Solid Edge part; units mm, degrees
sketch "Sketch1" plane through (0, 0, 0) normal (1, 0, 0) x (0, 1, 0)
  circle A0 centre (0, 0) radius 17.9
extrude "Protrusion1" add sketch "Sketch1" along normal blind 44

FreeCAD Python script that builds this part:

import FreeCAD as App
import Part
import Sketcher

V = App.Vector

doc = App.newDocument("Part")
body = doc.addObject("PartDesign::Body", "Body")

# Sketch on YZ plane
sketch1 = body.newObject("Sketcher::SketchObject", "Sketch")
sketch1.AttachmentSupport = (doc.getObject("YZ_Plane"), [""])
sketch1.MapMode = "FlatFace"
sketch1.addGeometry(Part.Circle(V(0, 0, 0), V(0, 0, 1), 17.9), False)
sketch1.addConstraint([
    Sketcher.Constraint("Coincident", 0, 3, -1, 1),
    Sketcher.Constraint("Diameter", 0, 35.8),
])
pad1 = body.newObject("PartDesign::Pad", "Pad")
pad1.Profile = sketch1
pad1.Length = 44

doc.recompute()
